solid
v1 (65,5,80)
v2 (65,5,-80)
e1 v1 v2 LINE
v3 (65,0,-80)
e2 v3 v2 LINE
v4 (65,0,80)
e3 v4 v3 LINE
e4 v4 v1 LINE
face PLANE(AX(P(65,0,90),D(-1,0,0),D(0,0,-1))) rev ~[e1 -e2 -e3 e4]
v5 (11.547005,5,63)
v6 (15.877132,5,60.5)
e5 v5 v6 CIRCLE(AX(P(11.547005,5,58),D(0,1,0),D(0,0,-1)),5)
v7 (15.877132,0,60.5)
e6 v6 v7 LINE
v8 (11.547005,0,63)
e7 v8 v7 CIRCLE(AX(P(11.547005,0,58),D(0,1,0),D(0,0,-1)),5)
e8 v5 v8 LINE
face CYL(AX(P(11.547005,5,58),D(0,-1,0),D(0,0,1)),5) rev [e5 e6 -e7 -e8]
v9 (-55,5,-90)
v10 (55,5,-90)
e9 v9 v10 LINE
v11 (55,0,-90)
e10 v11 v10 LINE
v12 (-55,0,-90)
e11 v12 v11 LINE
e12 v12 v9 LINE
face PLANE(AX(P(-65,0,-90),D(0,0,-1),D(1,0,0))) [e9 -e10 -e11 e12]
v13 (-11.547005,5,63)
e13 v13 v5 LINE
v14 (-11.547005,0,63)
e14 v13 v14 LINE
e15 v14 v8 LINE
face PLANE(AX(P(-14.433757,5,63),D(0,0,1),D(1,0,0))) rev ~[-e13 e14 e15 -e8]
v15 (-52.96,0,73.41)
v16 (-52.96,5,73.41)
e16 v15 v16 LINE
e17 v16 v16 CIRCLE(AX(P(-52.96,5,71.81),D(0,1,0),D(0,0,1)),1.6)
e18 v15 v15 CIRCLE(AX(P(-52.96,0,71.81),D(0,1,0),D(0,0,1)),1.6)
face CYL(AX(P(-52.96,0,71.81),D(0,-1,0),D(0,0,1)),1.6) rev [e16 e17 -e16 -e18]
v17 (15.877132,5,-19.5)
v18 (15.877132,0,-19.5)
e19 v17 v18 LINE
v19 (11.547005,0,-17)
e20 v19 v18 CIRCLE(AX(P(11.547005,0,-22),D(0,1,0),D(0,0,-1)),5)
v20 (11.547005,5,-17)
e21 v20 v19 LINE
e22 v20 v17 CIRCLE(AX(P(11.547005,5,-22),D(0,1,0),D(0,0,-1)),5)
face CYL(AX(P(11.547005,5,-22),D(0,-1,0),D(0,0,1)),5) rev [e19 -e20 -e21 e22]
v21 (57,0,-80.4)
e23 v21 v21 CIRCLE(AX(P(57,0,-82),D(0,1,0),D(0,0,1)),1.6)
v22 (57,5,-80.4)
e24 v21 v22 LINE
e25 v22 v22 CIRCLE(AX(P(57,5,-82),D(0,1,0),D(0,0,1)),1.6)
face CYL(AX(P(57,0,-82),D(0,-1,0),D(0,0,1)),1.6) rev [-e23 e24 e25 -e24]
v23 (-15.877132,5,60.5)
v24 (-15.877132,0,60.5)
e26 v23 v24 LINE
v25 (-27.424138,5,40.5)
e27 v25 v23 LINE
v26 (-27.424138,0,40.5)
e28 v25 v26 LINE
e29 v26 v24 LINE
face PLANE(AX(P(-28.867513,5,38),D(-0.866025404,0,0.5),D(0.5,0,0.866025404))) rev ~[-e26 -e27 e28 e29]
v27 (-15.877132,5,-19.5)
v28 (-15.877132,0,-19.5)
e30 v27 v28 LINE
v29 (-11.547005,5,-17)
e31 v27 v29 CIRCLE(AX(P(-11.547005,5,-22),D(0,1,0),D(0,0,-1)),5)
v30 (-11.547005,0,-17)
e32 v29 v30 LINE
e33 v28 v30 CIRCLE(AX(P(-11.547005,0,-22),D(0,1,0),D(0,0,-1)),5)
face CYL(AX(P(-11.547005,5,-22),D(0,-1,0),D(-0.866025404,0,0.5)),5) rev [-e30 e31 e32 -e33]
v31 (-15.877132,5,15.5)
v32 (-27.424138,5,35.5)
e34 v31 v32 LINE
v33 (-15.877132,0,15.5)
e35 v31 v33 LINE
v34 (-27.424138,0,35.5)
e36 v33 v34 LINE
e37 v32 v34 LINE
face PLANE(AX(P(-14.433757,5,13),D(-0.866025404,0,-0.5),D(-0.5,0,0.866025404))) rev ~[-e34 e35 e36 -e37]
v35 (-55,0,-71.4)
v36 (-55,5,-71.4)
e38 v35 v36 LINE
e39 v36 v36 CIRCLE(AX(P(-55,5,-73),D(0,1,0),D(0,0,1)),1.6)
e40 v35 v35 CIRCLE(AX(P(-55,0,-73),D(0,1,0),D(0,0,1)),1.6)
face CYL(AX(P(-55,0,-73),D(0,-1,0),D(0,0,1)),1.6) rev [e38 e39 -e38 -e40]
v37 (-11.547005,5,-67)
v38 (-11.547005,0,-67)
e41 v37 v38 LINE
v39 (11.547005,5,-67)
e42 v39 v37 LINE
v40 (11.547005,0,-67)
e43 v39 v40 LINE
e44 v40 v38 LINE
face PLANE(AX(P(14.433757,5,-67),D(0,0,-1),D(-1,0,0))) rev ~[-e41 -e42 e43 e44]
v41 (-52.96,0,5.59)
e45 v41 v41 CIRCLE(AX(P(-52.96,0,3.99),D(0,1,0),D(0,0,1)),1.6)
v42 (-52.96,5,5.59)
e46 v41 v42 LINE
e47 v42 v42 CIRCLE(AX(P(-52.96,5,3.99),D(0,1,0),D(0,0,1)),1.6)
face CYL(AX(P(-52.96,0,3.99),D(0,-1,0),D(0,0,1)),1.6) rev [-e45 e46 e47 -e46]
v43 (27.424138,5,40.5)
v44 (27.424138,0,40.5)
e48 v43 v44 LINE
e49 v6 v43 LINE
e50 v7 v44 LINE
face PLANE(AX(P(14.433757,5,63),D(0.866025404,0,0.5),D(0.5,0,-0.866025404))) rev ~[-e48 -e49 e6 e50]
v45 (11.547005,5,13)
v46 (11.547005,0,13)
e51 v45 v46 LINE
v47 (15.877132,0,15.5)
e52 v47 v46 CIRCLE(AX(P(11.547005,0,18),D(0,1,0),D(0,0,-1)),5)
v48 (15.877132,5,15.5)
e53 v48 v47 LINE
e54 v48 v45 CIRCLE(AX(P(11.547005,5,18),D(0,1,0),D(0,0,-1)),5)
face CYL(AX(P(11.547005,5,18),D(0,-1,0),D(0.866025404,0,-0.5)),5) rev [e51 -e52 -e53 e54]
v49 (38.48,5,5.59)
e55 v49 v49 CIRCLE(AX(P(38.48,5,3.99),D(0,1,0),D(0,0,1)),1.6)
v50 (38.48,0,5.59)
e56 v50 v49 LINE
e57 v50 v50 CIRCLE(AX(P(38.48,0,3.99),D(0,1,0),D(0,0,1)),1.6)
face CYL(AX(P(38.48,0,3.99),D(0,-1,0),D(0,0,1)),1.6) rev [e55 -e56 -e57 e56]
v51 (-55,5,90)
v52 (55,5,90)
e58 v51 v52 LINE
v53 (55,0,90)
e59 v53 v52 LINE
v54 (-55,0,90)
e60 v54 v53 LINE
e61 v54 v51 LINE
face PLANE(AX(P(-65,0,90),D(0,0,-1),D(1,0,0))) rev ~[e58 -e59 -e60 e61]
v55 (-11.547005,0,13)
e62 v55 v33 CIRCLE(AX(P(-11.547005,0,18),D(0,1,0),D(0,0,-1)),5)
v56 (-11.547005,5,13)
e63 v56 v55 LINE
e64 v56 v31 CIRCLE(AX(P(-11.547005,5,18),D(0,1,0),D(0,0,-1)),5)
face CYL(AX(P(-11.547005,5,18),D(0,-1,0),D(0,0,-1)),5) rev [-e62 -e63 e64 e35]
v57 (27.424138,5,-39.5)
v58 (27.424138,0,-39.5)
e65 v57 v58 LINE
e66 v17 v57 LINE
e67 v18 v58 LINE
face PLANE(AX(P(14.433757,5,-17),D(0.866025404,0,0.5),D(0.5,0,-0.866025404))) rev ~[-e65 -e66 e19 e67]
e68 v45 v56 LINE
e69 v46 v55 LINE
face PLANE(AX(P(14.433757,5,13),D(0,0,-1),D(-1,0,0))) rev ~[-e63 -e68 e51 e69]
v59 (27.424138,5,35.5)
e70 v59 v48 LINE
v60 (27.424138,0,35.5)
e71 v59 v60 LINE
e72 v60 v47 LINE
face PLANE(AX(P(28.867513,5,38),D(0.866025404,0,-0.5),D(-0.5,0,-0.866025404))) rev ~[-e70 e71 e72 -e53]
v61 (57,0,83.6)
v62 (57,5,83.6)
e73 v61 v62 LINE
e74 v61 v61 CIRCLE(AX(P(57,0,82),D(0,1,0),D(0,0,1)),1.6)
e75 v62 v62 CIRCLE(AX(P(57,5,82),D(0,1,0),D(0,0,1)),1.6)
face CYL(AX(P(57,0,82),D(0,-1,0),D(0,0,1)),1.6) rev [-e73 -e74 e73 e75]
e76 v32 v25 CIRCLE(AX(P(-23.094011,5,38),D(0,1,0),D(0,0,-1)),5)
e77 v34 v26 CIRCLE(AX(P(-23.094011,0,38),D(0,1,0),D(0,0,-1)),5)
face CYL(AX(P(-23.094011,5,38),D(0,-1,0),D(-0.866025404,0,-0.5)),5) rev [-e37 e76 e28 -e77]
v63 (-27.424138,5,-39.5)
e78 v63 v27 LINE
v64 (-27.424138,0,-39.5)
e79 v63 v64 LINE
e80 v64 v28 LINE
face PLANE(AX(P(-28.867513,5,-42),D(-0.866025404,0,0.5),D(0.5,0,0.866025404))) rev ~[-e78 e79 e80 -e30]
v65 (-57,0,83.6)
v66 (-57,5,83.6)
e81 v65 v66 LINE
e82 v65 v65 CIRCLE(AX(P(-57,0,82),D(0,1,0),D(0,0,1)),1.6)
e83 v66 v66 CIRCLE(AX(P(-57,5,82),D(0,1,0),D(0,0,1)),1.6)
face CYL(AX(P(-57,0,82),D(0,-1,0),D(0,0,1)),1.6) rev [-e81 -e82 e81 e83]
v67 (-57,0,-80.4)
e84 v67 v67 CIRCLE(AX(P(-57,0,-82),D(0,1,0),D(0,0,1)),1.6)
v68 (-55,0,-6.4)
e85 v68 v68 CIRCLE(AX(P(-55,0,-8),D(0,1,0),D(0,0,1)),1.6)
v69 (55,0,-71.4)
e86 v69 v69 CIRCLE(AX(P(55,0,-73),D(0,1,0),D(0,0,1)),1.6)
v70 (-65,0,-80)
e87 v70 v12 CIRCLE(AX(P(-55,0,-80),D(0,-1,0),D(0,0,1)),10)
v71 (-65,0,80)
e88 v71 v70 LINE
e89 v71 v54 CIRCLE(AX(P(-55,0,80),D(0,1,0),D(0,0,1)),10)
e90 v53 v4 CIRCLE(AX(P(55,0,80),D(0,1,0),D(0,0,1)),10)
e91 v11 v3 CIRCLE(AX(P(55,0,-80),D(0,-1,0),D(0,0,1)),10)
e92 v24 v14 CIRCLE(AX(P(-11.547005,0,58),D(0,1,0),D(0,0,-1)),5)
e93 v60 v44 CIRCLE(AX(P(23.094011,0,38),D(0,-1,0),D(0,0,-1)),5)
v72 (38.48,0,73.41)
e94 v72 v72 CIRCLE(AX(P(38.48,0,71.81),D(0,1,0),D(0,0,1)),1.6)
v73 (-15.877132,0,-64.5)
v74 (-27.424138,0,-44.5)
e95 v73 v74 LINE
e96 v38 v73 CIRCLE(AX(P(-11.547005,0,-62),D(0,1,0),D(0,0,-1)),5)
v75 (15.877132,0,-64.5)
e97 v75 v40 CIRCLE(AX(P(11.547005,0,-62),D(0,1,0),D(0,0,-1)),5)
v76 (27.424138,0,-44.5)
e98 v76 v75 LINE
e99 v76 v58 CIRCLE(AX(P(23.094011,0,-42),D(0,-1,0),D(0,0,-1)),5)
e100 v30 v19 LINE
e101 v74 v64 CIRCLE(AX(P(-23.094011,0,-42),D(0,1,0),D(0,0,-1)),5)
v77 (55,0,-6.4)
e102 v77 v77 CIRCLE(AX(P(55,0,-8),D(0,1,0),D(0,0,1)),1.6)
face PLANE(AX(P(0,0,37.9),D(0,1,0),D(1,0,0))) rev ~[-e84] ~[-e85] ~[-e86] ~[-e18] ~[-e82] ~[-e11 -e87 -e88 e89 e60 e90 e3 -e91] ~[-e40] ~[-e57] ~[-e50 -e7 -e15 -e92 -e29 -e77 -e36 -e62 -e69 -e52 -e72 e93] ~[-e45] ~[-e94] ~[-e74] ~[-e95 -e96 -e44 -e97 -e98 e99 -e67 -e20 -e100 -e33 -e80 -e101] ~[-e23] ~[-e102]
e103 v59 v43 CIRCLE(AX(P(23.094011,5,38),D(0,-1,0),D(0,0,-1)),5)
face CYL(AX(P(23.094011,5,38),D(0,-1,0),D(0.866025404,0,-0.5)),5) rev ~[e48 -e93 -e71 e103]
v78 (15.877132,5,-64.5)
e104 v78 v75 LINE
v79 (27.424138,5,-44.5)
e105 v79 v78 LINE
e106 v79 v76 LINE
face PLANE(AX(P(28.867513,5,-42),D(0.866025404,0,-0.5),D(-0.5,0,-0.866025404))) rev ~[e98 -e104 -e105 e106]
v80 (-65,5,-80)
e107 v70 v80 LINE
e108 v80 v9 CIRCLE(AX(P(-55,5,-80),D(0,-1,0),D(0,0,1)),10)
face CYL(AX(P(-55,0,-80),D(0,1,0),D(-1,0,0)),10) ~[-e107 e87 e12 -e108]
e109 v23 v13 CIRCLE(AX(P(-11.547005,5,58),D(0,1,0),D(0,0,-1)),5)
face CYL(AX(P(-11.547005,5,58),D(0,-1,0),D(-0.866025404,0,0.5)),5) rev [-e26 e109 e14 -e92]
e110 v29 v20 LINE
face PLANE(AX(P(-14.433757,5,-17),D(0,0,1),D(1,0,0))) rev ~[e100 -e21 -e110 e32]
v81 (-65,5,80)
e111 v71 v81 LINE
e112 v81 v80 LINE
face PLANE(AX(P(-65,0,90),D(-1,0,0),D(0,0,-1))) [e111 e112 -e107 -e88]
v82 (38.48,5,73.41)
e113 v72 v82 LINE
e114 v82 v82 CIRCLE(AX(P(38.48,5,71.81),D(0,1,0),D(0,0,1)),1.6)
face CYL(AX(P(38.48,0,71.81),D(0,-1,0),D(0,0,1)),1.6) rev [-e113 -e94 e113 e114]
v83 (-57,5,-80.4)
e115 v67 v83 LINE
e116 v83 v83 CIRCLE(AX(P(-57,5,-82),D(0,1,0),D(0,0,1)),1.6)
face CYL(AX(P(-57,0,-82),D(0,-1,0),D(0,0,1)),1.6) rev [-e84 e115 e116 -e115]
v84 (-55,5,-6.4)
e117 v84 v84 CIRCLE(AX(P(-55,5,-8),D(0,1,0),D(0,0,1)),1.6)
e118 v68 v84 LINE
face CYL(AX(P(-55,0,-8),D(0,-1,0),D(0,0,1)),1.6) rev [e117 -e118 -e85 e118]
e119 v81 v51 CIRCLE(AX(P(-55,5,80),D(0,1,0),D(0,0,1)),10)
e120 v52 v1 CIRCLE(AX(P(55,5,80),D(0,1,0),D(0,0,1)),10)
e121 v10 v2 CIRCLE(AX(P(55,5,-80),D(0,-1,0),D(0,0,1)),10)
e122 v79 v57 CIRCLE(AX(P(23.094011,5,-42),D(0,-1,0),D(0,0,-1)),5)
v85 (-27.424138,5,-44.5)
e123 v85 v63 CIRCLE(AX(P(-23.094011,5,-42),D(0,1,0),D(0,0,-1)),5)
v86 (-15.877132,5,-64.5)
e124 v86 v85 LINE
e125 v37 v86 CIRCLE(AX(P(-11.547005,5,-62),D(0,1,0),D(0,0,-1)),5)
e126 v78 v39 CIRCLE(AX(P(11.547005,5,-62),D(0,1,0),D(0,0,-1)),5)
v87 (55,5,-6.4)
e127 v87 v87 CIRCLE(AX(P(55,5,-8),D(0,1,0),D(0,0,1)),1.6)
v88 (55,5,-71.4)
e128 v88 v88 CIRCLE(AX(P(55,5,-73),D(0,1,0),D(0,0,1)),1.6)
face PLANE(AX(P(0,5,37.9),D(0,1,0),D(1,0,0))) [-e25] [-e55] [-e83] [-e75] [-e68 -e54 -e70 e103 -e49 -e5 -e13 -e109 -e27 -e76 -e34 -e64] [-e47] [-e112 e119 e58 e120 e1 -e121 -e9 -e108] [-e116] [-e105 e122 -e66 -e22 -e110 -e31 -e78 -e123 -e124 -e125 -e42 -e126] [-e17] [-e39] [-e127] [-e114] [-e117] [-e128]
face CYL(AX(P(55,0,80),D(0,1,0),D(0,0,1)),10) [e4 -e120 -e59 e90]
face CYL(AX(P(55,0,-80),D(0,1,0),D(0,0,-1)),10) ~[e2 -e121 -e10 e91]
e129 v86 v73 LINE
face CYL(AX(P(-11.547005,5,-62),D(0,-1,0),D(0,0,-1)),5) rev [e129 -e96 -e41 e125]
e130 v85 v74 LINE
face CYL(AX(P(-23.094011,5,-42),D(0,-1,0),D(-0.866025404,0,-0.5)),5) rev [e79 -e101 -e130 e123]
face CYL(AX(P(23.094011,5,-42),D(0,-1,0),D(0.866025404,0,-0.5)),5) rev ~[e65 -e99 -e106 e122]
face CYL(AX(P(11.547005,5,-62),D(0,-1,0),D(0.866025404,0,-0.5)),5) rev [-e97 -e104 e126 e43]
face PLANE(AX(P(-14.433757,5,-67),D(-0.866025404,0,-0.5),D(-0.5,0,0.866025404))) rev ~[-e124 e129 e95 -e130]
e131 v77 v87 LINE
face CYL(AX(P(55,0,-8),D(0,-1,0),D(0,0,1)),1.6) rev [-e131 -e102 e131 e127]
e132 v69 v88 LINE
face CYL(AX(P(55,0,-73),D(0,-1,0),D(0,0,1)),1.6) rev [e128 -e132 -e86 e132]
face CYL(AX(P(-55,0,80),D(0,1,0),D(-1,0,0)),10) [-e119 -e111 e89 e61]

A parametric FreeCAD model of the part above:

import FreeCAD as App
import Part
import Sketcher

V = App.Vector
Q = App.Units.Quantity


def edges_at(feature, points):
    """Names of the edges that pass closest to the given points."""
    edges = feature.Shape.Edges
    near = lambda p: min(range(len(edges)), key=lambda i: edges[i].distToShape(Part.Vertex(*p))[0])
    return sorted({f"Edge{near(p) + 1}" for p in points})


def add_polygon(sketch, points):
    """Adds a closed chain of lines whose ends are joined by coincident constraints."""
    first, n = sketch.GeometryCount, len(points)
    for a, b in zip(points, points[1:] + points[:1]):
        sketch.addGeometry(Part.LineSegment(App.Vector(*a, 0), App.Vector(*b, 0)), False)
    for i in range(n):
        sketch.addConstraint(Sketcher.Constraint("Coincident", first + i, 2, first + (i + 1) % n, 1))

doc = App.newDocument("Part")
body = doc.addObject("PartDesign::Body", "Body")

# Sketch on XZ plane
sketch1 = body.newObject("Sketcher::SketchObject", "Sketch")
sketch1.AttachmentSupport = (doc.getObject("XZ_Plane"), [""])
sketch1.MapMode = "FlatFace"
add_polygon(sketch1, [(-65, -90), (-65, 90), (65, 90), (65, -90)])  # lines 0-3
sketch1.addGeometry(Part.Circle(V(-57, 82, 0), V(0, 0, 1), 1.6), False)  # 4
sketch1.addGeometry(Part.Circle(V(57, 82, 0), V(0, 0, 1), 1.6), False)  # 5
sketch1.addGeometry(Part.Circle(V(-57, -82, 0), V(0, 0, 1), 1.6), False)  # 6
sketch1.addGeometry(Part.Circle(V(57, -82, 0), V(0, 0, 1), 1.6), False)  # 7
sketch1.addGeometry(Part.Circle(V(-53, 4, 0), V(0, 0, 1), 1.6), False)  # 8
sketch1.addGeometry(Part.Circle(V(38.5, 4, 0), V(0, 0, 1), 1.6), False)  # 9
sketch1.addGeometry(Part.Circle(V(-53, 71.8, 0), V(0, 0, 1), 1.6), False)  # 10
sketch1.addGeometry(Part.Circle(V(38.5, 71.8, 0), V(0, 0, 1), 1.6), False)  # 11
sketch1.addGeometry(Part.Circle(V(-55, -8, 0), V(0, 0, 1), 1.6), False)  # 12
sketch1.addGeometry(Part.Circle(V(55, -73, 0), V(0, 0, 1), 1.6), False)  # 13
sketch1.addGeometry(Part.Circle(V(55, -8, 0), V(0, 0, 1), 1.6), False)  # 14
sketch1.addGeometry(Part.Circle(V(-55, -73, 0), V(0, 0, 1), 1.6), False)  # 15
sketch1.addConstraint([
    Sketcher.Constraint("Vertical", 0),
    Sketcher.Constraint("Horizontal", 1),
    Sketcher.Constraint("Vertical", 2),
    Sketcher.Constraint("Horizontal", 3),
    Sketcher.Constraint("Equal", 4, 5),
    Sketcher.Constraint("Equal", 5, 6),
    Sketcher.Constraint("Equal", 6, 7),
    Sketcher.Constraint("Equal", 7, 8),
    Sketcher.Constraint("Equal", 8, 9),
    Sketcher.Constraint("Equal", 9, 10),
    Sketcher.Constraint("Equal", 10, 11),
    Sketcher.Constraint("Equal", 11, 12),
    Sketcher.Constraint("Equal", 12, 13),
    Sketcher.Constraint("Equal", 13, 14),
    Sketcher.Constraint("Equal", 14, 15),
    Sketcher.Constraint("Symmetric", 5, 3, 6, 3, -1, 1),
    Sketcher.Constraint("Symmetric", 4, 3, 7, 3, -1, 1),
    Sketcher.Constraint("Symmetric", 0, 2, 2, 2, -1, 1),
    Sketcher.Constraint("Symmetric", 4, 3, 5, 3, -2),
    Sketcher.Constraint("Symmetric", 12, 3, 14, 3, -2),
    Sketcher.Constraint("Symmetric", 13, 3, 15, 3, -2),
    Sketcher.Constraint("Horizontal", 8, 3, 9, 3),
    Sketcher.Constraint("Horizontal", 10, 3, 11, 3),
    Sketcher.Constraint("Vertical", 8, 3, 10, 3),
    Sketcher.Constraint("Vertical", 9, 3, 11, 3),
    Sketcher.Constraint("Vertical", 13, 3, 14, 3),
    Sketcher.Constraint("Diameter", 4, Q("3.2 mm")),
    Sketcher.Constraint("DistanceX", 1, 1, 1, 2, Q("130 mm")),
    Sketcher.Constraint("DistanceY", 0, 1, 0, 2, Q("180 mm")),
    Sketcher.Constraint("DistanceX", 4, 3, -1, 1, Q("57 mm")),
    Sketcher.Constraint("DistanceY", -1, 1, 4, 3, Q("82 mm")),
    Sketcher.Constraint("DistanceX", 12, 3, -1, 1, Q("55 mm")),
    Sketcher.Constraint("DistanceY", 12, 3, -1, 1, Q("8 mm")),
    Sketcher.Constraint("DistanceY", 13, 3, -1, 1, Q("73 mm")),
    Sketcher.Constraint("DistanceX", 8, 3, -1, 1, Q("52.96 mm")),
    Sketcher.Constraint("DistanceY", -1, 1, 8, 3, Q("3.99 mm")),
    Sketcher.Constraint("DistanceX", -1, 1, 9, 3, Q("38.48 mm")),
    Sketcher.Constraint("DistanceY", -1, 1, 10, 3, Q("71.81 mm")),
])
pad1 = body.newObject("PartDesign::Pad", "Pad")
pad1.Profile = sketch1
pad1.Length = 5
pad1.Reversed = True
doc.recompute()

fillet = body.newObject("PartDesign::Fillet", "Fillet")
fillet.Base = (pad1, edges_at(pad1, [
    (65, 2.5, 90),
    (-65, 2.5, 90),
    (-65, 2.5, -90),
    (65, 2.5, -90),
]))
fillet.Radius = 10

# Sketch on XZ plane
sketch2 = body.newObject("Sketcher::SketchObject", "Sketch001")
sketch2.AttachmentSupport = (doc.getObject("XZ_Plane"), [""])
sketch2.MapMode = "FlatFace"
sketch2.AttachmentOffset = App.Placement(V(0, 0, -5), App.Rotation())
add_polygon(sketch2, [(29, -42), (14, -67), (-14, -67), (-29, -42), (-14, -17), (14, -17)])  # lines 0-5
add_polygon(sketch2, [(29, 38), (14, 13), (-14, 13), (-29, 38), (-14, 63), (14, 63)])  # lines 6-11
sketch2.addConstraint([
    Sketcher.Constraint("Horizontal", 1),
    Sketcher.Constraint("Horizontal", 4),
    Sketcher.Constraint("Horizontal", 7),
    Sketcher.Constraint("Horizontal", 10),
    Sketcher.Constraint("Symmetric", 2, 2, 5, 2, -2),
    Sketcher.Constraint("Symmetric", 8, 2, 11, 2, -2),
    Sketcher.Constraint("Parallel", 0, 3),
    Sketcher.Constraint("Parallel", 2, 5),
    Sketcher.Constraint("Parallel", 3, 6),
    Sketcher.Constraint("Parallel", 5, 8),
    Sketcher.Constraint("Parallel", 6, 9),
    Sketcher.Constraint("Parallel", 8, 11),
    Sketcher.Constraint("Vertical", 1, 2, 3, 2),
    Sketcher.Constraint("Vertical", 0, 2, 4, 2),
    Sketcher.Constraint("Vertical", 4, 2, 6, 2),
    Sketcher.Constraint("Vertical", 2, 2, 8, 2),
    Sketcher.Constraint("Vertical", 7, 2, 9, 2),
    Sketcher.Constraint("Angle", 0, Q("-120 deg")),
    Sketcher.Constraint("DistanceY", 0, 2, -1, 1, Q("67 mm")),
    Sketcher.Constraint("DistanceY", 2, 2, -1, 1, Q("42 mm")),
    Sketcher.Constraint("DistanceY", -1, 1, 6, 2, Q("13 mm")),
    Sketcher.Constraint("DistanceX", 1, 2, 1, 1, Q("28.867513 mm")),
])
pocket1 = body.newObject("PartDesign::Pocket", "Pocket")
pocket1.Profile = sketch2
pocket1.Length = 10
pocket1.Reversed = True
doc.recompute()

fillet2 = body.newObject("PartDesign::Fillet", "Fillet001")
fillet2.Base = (pocket1, edges_at(pocket1, [
    (28.868, 2.5, -42),
    (14.434, 2.5, -17),
    (-14.434, 2.5, -17),
    (-28.868, 2.5, -42),
    (-14.434, 2.5, -67),
    (14.434, 2.5, -67),
    (28.868, 2.5, 38),
    (14.434, 2.5, 63),
    (-14.434, 2.5, 63),
    (-28.868, 2.5, 38),
    (-14.434, 2.5, 13),
    (14.434, 2.5, 13),
]))
fillet2.Radius = 5

doc.recompute()
